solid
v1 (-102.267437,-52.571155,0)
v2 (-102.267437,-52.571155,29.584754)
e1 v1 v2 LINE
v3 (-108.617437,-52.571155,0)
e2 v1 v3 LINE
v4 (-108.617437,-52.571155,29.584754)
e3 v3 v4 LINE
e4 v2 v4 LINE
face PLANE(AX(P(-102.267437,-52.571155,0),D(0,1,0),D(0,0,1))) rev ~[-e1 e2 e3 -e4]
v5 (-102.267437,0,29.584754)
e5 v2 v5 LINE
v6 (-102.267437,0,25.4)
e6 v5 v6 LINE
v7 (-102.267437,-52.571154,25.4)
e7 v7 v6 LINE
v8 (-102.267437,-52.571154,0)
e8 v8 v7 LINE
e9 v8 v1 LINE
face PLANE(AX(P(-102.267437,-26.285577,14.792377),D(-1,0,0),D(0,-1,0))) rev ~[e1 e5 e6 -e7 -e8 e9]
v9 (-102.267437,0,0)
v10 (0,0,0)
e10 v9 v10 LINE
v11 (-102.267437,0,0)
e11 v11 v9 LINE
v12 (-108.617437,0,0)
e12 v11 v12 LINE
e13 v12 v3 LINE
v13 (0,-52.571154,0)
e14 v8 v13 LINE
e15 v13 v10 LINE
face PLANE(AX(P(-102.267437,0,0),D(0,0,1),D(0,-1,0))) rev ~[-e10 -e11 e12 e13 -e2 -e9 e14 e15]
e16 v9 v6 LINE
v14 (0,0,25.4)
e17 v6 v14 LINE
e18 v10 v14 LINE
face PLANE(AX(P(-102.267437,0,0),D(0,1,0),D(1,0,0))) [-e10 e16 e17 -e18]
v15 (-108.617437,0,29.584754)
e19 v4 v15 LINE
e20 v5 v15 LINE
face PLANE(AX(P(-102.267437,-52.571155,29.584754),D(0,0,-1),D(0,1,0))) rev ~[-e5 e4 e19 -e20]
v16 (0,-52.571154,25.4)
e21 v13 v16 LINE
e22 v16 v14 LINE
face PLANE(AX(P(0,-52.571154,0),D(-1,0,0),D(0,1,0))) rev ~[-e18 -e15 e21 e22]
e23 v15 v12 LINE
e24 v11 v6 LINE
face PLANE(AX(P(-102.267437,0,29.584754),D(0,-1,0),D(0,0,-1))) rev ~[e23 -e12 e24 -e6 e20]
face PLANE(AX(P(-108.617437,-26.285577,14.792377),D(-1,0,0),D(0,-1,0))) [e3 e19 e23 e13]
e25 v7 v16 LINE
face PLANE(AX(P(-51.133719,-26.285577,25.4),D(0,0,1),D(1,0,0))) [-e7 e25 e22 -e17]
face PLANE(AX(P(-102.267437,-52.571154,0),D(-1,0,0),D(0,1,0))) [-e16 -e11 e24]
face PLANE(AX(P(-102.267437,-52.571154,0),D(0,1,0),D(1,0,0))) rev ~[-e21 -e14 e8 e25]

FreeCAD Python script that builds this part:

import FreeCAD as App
import Part
import Sketcher

doc = App.newDocument("Part")
params = doc.addObject("Spreadsheet::Sheet", "Params")
for row, (alias, value) in enumerate([
    ("pad1_length", "1 in"),
    ("pad2_length", "0.25 in"),
], start=1):
    params.set(f"A{row}", alias)
    params.set(f"B{row}", "=" + value)
    params.setAlias(f"B{row}", alias)

body = doc.addObject("PartDesign::Body", "Body")

# Sketch on XY plane
sketch1 = body.newObject("Sketcher::SketchObject", "Sketch")
sketch1.AttachmentSupport = (doc.getObject("XY_Plane"), [""])
sketch1.MapMode = "FlatFace"
sketch1.addGeometry([
    Part.LineSegment(App.Vector(-102.267437, 0, 0), App.Vector(-102.267437, -52.571154, 0)),
    Part.LineSegment(App.Vector(-102.267437, -52.571154, 0), App.Vector(0, -52.571154, 0)),
    Part.LineSegment(App.Vector(0, -52.571154, 0), App.Vector(0, 0, 0)),
    Part.LineSegment(App.Vector(0, 0, 0), App.Vector(-102.267437, 0, 0)),
], False)
sketch1.addConstraint([
    Sketcher.Constraint("Coincident", 0, 2, 1, 1),
    Sketcher.Constraint("Coincident", 1, 2, 2, 1),
    Sketcher.Constraint("Coincident", 2, 2, 3, 1),
    Sketcher.Constraint("Coincident", 3, 2, 0, 1),
    Sketcher.Constraint("Vertical", 0),
    Sketcher.Constraint("Horizontal", 1),
    Sketcher.Constraint("Vertical", 2),
    Sketcher.Constraint("Horizontal", 3),
    Sketcher.Constraint("Coincident", 2, 2, -1, 1),
    Sketcher.Constraint("DistanceX", 1, 1, 1, 2, 102.267437),
    Sketcher.Constraint("DistanceY", 0, 2, 0, 1, 52.571155),
])
pad1 = body.newObject("PartDesign::Pad", "Pad")
pad1.Profile = sketch1
pad1.setExpression("Length", "Params.pad1_length")

# Sketch on YZ plane
sketch2 = body.newObject("Sketcher::SketchObject", "Sketch001")
sketch2.AttachmentSupport = (doc.getObject("YZ_Plane"), [""])
sketch2.MapMode = "FlatFace"
sketch2.AttachmentOffset = App.Placement(App.Vector(0, 0, -102.267437), App.Rotation())
sketch2.addGeometry([
    Part.LineSegment(App.Vector(0, 29.584754, 0), App.Vector(0, 0, 0)),
    Part.LineSegment(App.Vector(0, 0, 0), App.Vector(-52.571155, 0, 0)),
    Part.LineSegment(App.Vector(-52.571155, 0, 0), App.Vector(-52.571155, 29.584754, 0)),
    Part.LineSegment(App.Vector(-52.571155, 29.584754, 0), App.Vector(0, 29.584754, 0)),
], False)
sketch2.addConstraint([
    Sketcher.Constraint("Coincident", 0, 2, 1, 1),
    Sketcher.Constraint("Coincident", 1, 2, 2, 1),
    Sketcher.Constraint("Coincident", 2, 2, 3, 1),
    Sketcher.Constraint("Coincident", 3, 2, 0, 1),
    Sketcher.Constraint("Vertical", 0),
    Sketcher.Constraint("Horizontal", 1),
    Sketcher.Constraint("Vertical", 2),
    Sketcher.Constraint("Horizontal", 3),
    Sketcher.Constraint("Coincident", 0, 2, -1, 1),
    Sketcher.Constraint("DistanceX", 1, 2, 1, 1, 52.571155),
    Sketcher.Constraint("DistanceY", 0, 2, 0, 1, 29.584754),
])
pad2 = body.newObject("PartDesign::Pad", "Pad001")
pad2.Profile = sketch2
pad2.setExpression("Length", "Params.pad2_length")
pad2.Reversed = True

doc.recompute()
